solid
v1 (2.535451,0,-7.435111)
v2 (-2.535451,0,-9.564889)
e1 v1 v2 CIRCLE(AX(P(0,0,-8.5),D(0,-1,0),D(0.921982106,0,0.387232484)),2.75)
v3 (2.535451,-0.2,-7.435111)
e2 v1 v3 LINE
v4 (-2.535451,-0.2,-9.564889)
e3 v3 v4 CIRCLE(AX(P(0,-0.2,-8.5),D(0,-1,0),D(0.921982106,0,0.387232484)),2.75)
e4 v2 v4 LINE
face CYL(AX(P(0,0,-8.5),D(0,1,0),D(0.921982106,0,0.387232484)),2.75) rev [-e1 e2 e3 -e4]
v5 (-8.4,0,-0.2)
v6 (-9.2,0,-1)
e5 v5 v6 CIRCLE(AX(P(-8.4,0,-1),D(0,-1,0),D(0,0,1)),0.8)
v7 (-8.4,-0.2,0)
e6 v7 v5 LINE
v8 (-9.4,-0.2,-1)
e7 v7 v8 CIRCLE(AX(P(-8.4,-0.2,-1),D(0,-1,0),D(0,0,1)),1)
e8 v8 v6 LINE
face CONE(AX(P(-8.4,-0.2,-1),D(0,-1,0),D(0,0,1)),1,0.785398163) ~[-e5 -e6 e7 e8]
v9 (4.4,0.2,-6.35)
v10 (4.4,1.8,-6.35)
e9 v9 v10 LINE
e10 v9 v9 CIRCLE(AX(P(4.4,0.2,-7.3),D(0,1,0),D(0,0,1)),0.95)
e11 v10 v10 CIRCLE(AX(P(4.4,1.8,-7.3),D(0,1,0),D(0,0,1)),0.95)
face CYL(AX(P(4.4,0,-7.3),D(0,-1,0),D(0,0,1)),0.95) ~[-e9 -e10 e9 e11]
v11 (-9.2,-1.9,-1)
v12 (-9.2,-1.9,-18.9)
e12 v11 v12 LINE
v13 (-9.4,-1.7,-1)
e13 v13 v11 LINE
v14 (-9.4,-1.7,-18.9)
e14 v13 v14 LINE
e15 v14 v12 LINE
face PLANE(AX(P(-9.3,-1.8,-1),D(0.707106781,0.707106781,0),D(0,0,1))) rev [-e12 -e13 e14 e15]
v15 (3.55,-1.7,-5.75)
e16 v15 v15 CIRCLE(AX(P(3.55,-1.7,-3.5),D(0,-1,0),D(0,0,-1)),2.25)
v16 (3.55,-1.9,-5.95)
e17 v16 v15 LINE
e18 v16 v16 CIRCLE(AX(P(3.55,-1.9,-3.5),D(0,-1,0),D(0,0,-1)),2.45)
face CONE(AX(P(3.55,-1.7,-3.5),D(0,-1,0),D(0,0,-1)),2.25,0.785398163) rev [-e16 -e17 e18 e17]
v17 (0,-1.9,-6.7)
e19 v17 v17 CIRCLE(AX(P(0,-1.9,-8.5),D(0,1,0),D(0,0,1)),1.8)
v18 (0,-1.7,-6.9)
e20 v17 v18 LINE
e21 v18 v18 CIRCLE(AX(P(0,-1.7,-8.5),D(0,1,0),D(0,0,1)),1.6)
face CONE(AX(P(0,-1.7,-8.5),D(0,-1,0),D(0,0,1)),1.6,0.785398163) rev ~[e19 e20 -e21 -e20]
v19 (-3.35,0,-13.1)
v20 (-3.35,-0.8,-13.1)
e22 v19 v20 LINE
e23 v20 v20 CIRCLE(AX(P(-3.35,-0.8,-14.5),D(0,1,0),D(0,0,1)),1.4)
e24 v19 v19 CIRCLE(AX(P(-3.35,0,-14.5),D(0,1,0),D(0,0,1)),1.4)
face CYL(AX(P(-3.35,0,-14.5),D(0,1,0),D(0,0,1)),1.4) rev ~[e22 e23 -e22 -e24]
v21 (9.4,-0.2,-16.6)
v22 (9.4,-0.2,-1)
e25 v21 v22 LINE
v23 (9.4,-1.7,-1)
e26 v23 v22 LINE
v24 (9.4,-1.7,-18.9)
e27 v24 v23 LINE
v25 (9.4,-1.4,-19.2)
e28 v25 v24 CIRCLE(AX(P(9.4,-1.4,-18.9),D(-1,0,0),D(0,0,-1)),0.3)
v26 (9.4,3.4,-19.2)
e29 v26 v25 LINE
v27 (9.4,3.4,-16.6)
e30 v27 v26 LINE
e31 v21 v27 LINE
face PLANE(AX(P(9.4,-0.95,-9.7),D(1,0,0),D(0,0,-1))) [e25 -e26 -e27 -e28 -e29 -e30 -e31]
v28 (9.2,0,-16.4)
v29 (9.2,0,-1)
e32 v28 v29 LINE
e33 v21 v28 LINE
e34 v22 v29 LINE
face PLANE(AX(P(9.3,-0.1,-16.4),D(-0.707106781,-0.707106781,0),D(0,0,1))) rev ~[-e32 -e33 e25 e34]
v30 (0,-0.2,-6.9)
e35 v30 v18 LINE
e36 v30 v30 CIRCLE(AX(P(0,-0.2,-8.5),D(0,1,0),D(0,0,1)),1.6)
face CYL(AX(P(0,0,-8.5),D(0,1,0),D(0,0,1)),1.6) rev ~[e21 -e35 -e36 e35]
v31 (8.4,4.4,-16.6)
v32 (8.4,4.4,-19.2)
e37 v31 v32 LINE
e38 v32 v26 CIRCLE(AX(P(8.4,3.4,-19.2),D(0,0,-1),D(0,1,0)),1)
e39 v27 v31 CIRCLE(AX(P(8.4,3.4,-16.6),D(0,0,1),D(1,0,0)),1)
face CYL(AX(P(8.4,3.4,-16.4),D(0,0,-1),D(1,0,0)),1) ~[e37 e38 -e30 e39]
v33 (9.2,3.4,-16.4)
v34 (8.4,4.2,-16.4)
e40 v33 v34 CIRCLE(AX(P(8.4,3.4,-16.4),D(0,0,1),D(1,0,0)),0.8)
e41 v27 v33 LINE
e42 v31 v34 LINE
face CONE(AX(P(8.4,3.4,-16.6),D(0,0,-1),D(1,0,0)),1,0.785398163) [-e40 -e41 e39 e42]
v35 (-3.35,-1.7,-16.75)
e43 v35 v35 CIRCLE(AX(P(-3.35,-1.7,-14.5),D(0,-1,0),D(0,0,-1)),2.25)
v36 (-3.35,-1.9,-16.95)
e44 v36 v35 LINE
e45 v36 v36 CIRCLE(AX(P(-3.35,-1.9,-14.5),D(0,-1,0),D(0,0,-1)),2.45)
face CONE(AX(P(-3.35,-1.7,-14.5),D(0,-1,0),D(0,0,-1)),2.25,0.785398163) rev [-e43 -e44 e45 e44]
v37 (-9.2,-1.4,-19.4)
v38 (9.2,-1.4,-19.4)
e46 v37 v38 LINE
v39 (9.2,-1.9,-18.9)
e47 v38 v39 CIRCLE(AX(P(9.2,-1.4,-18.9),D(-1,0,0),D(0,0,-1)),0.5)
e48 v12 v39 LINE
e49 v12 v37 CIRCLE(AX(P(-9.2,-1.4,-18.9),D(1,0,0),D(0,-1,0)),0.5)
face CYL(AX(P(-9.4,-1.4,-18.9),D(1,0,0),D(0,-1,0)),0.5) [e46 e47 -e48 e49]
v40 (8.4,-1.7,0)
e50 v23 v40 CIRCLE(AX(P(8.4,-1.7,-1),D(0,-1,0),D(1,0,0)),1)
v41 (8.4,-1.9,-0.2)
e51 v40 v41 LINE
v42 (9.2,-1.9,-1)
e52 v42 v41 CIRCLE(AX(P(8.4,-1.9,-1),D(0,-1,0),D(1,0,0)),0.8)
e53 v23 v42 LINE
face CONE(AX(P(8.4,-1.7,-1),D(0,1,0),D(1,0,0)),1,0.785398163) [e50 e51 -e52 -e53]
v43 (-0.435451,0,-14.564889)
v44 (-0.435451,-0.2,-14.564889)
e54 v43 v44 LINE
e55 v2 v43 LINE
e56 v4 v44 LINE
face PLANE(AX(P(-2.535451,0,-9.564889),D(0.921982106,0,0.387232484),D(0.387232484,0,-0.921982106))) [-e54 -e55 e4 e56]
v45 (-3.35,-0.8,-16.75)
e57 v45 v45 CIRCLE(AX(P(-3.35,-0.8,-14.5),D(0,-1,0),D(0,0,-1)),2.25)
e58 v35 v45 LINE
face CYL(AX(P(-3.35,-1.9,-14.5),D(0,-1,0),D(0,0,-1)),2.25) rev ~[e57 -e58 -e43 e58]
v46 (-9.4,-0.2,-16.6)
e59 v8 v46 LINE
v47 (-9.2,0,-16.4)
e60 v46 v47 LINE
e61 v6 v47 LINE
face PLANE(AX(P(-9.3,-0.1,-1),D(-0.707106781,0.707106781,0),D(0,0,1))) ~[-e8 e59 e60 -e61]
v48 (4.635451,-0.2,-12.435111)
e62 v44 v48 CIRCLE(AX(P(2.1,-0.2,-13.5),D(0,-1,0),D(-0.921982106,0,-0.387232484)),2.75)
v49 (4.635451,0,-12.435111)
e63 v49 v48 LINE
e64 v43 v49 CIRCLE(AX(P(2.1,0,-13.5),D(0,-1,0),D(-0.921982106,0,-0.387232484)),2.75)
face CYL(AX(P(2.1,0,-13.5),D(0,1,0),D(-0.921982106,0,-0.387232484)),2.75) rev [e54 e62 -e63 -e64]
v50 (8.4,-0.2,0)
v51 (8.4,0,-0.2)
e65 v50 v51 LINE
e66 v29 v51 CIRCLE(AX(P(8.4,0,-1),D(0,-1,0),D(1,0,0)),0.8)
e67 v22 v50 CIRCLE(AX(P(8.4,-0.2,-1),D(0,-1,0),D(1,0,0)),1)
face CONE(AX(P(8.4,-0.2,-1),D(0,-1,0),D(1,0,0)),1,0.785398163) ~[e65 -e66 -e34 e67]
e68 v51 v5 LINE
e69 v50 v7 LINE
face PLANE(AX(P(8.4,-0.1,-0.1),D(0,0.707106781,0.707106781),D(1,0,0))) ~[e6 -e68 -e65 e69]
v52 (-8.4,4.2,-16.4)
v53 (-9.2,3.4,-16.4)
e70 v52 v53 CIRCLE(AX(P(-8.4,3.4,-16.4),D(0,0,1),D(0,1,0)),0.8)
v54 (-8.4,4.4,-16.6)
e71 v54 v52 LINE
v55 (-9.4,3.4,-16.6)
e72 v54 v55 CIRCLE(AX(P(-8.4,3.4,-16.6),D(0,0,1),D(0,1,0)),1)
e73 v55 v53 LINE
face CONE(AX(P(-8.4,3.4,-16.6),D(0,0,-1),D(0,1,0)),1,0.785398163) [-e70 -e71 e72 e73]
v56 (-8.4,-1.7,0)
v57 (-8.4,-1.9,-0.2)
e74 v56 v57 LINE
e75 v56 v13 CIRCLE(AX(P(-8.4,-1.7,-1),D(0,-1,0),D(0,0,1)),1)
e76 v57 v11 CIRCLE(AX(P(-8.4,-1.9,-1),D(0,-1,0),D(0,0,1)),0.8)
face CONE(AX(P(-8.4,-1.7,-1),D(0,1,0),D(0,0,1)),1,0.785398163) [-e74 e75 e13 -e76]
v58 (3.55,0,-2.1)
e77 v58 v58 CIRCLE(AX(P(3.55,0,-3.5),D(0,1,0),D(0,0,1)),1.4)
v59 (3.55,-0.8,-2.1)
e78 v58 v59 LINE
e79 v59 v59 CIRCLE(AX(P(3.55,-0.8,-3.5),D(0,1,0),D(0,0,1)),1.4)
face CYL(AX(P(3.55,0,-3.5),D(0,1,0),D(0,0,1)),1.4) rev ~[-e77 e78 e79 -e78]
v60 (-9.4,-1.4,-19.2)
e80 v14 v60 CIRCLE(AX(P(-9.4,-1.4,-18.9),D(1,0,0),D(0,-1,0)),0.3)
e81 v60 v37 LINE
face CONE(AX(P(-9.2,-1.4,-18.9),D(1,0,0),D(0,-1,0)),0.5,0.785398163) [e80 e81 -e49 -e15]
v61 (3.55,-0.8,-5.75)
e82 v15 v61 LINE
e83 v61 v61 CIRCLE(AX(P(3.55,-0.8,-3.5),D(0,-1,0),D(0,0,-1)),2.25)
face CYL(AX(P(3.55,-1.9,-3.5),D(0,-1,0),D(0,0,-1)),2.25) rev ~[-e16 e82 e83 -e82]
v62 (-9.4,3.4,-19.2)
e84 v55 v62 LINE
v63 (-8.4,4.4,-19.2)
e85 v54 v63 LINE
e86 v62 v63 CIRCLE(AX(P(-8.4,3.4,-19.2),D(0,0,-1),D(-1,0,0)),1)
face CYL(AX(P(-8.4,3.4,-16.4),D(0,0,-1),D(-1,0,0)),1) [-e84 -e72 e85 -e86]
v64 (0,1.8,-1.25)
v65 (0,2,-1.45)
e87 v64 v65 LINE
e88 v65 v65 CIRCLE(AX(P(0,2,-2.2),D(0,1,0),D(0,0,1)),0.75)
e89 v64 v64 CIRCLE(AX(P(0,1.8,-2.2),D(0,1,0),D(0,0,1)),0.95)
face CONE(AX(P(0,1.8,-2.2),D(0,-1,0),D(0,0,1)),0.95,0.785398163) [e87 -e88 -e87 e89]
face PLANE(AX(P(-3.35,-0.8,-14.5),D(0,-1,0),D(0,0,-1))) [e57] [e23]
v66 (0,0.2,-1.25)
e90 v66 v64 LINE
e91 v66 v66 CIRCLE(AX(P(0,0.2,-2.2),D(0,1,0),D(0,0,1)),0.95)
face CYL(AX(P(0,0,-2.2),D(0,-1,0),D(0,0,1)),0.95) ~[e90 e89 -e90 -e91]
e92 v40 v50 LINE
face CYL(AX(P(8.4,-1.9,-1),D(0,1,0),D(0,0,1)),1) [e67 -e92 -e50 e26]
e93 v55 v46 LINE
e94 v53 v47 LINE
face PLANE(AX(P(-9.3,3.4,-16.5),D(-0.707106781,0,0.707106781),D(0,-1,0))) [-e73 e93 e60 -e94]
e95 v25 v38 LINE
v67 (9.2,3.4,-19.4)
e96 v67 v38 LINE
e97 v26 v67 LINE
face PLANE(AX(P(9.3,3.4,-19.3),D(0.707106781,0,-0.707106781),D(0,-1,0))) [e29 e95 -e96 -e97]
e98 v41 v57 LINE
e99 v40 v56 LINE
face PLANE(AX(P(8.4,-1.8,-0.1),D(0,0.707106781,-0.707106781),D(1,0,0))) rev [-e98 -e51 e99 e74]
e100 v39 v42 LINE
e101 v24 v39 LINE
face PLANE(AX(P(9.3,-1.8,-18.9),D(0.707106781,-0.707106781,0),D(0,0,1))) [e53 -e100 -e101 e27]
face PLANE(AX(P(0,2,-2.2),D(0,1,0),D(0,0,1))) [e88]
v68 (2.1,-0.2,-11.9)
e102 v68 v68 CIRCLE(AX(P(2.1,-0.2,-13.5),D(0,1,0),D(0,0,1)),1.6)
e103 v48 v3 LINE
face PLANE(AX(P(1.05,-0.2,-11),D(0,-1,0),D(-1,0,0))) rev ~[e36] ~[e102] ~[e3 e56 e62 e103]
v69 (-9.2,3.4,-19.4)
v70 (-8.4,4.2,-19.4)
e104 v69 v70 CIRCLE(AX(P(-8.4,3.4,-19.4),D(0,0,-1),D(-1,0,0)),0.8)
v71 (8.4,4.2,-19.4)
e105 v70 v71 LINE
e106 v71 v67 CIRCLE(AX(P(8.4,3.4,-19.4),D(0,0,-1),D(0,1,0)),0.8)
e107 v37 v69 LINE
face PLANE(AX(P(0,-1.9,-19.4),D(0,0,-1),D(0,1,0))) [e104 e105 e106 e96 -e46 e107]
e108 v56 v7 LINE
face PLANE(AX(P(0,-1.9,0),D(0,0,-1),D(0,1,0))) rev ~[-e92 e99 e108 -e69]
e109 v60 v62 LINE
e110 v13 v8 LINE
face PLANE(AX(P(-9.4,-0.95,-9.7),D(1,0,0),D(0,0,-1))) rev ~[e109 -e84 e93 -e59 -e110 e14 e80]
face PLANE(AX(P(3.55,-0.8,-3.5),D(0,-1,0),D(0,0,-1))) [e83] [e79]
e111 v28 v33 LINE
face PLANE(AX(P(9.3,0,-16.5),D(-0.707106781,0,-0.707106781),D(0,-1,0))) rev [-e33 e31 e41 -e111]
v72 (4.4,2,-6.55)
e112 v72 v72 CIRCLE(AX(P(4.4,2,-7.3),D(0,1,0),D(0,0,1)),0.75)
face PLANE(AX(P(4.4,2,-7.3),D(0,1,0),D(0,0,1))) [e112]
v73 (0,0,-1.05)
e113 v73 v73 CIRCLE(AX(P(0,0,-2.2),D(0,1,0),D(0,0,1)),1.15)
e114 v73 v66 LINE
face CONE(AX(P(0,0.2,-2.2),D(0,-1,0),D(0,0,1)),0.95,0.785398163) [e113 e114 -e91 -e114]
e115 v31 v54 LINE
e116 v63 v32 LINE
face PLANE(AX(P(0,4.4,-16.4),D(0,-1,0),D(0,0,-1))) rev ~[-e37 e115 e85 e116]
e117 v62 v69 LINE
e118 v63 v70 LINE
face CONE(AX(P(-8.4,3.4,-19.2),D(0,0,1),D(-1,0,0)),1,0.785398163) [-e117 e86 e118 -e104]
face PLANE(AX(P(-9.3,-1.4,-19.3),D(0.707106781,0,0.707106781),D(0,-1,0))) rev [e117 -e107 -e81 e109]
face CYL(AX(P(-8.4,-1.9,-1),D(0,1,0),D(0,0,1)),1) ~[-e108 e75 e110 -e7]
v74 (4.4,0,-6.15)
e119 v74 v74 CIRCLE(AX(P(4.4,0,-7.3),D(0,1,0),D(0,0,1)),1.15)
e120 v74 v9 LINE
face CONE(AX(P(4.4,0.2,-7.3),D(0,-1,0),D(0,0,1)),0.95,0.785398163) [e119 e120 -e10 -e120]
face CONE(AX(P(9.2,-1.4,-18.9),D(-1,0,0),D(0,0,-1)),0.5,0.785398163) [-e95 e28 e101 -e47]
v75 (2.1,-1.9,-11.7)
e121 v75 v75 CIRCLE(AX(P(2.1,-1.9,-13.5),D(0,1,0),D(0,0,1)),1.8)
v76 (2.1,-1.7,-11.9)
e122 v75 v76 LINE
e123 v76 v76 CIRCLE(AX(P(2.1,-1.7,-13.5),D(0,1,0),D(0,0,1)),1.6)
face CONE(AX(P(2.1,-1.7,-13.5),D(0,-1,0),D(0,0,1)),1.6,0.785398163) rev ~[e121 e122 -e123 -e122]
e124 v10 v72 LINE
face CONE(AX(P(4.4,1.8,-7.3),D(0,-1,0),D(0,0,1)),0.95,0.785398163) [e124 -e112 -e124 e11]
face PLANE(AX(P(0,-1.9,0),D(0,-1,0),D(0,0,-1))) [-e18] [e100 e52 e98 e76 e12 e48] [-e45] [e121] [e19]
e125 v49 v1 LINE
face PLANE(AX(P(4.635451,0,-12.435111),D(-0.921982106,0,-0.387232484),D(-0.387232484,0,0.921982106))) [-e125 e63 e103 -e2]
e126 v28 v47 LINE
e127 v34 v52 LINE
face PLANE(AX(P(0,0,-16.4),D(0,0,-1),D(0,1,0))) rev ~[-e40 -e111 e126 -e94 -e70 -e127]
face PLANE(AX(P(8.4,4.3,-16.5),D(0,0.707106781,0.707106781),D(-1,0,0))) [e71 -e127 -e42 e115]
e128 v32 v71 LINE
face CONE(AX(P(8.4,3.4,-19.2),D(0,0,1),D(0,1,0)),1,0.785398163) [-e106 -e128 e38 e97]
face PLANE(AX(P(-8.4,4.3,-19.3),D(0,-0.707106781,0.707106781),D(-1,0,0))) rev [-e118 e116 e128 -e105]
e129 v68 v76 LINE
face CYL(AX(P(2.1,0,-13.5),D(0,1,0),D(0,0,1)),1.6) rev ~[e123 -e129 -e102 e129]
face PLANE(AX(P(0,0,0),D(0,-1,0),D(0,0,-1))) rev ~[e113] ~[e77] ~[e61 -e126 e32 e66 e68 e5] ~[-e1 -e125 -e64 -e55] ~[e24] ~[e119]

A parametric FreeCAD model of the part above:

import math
import FreeCAD as App
import Part
import Sketcher

V = App.Vector
Q = App.Units.Quantity


def edges_at(feature, points):
    """Names of the edges that pass closest to the given points."""
    edges = feature.Shape.Edges
    near = lambda p: min(range(len(edges)), key=lambda i: edges[i].distToShape(Part.Vertex(*p))[0])
    return sorted({f"Edge{near(p) + 1}" for p in points})


def add_polygon(sketch, points):
    """Adds a closed chain of lines whose ends are joined by coincident constraints."""
    first, n = sketch.GeometryCount, len(points)
    for a, b in zip(points, points[1:] + points[:1]):
        sketch.addGeometry(Part.LineSegment(App.Vector(*a, 0), App.Vector(*b, 0)), False)
    for i in range(n):
        sketch.addConstraint(Sketcher.Constraint("Coincident", first + i, 2, first + (i + 1) % n, 1))

doc = App.newDocument("Part")
body = doc.addObject("PartDesign::Body", "Body")

# Sketch on YZ plane
sketch1 = body.newObject("Sketcher::SketchObject", "Sketch")
sketch1.AttachmentSupport = (doc.getObject("YZ_Plane"), [""])
sketch1.MapMode = "FlatFace"
add_polygon(sketch1, [(0, 0), (-1.9, 0), (-1.9, -19.4), (4.4, -19.4), (4.4, -16.4), (0, -16.4)])  # lines 0-5
sketch1.addConstraint(Sketcher.Constraint("Horizontal", 0))
sketch1.addConstraint(Sketcher.Constraint("Vertical", 1))
sketch1.addConstraint(Sketcher.Constraint("Horizontal", 2))
sketch1.addConstraint(Sketcher.Constraint("Vertical", 3))
sketch1.addConstraint(Sketcher.Constraint("Horizontal", 4))
sketch1.addConstraint(Sketcher.Constraint("Vertical", 5))
sketch1.addConstraint(Sketcher.Constraint("Coincident", 5, 2, -1, 1))
sketch1.addConstraint(Sketcher.Constraint("DistanceY", 3, 1, 3, 2, Q("3 mm")))
sketch1.addConstraint(Sketcher.Constraint("DistanceX", 0, 2, 0, 1, Q("1.9 mm")))
sketch1.addConstraint(Sketcher.Constraint("DistanceX", 2, 1, 2, 2, Q("6.3 mm")))
sketch1.addConstraint(Sketcher.Constraint("DistanceY", 1, 2, 1, 1, Q("19.4 mm")))
pad1 = body.newObject("PartDesign::Pad", "Pad")
pad1.Profile = sketch1
pad1.Length = 18.8
pad1.Midplane = True

# Sketch on XZ plane
sketch2 = body.newObject("Sketcher::SketchObject", "Sketch001")
sketch2.AttachmentSupport = (doc.getObject("XZ_Plane"), [""])
sketch2.MapMode = "FlatFace"
sketch2.addGeometry(Part.Circle(V(0, -8.5, 0), V(0, 0, 1), 1.6), False)
sketch2.addGeometry(Part.Circle(V(2.1, -13.5, 0), V(0, 0, 1), 1.6), False)
sketch2.addGeometry(Part.Circle(V(3.5, -3.5, 0), V(0, 0, 1), 1.4), False)
sketch2.addGeometry(Part.Circle(V(-3.4, -14.5, 0), V(0, 0, 1), 1.4), False)
sketch2.addConstraint(Sketcher.Constraint("Equal", 0, 1))
sketch2.addConstraint(Sketcher.Constraint("Equal", 2, 3))
sketch2.addConstraint(Sketcher.Constraint("PointOnObject", 0, 3, -2))
sketch2.addConstraint(Sketcher.Constraint("Diameter", 0, Q("3.2 mm")))
sketch2.addConstraint(Sketcher.Constraint("Diameter", 2, Q("2.8 mm")))
sketch2.addConstraint(Sketcher.Constraint("DistanceY", 1, 3, 0, 3, Q("5 mm")))
sketch2.addConstraint(Sketcher.Constraint("DistanceY", 0, 3, 2, 3, Q("5 mm")))
sketch2.addConstraint(Sketcher.Constraint("DistanceY", 3, 3, 1, 3, Q("1 mm")))
sketch2.addConstraint(Sketcher.Constraint("DistanceY", 0, 3, -1, 1, Q("8.5 mm")))
sketch2.addConstraint(Sketcher.Constraint("DistanceX", -1, 1, 1, 3, Q("2.1 mm")))
sketch2.addConstraint(Sketcher.Constraint("DistanceX", 3, 3, 2, 3, Q("6.9 mm")))
sketch2.addConstraint(Sketcher.Constraint("DistanceX", -1, 1, 2, 3, Q("3.55 mm")))
pocket1 = body.newObject("PartDesign::Pocket", "Pocket")
pocket1.Profile = sketch2
pocket1.Type = "ThroughAll"
pocket1.Reversed = True

# Sketch on XZ plane
sketch3 = body.newObject("Sketcher::SketchObject", "Sketch002")
sketch3.AttachmentSupport = (doc.getObject("XZ_Plane"), [""])
sketch3.MapMode = "FlatFace"
sketch3.addGeometry(Part.LineSegment(V(-0.4, -14.6, 0), V(-2.5, -9.6, 0)), False)
sketch3.addGeometry(Part.ArcOfCircle(Part.Circle(V(0, -8.5, 0), V(0, 0, 1), 2.8), math.radians(23), math.radians(203)), False)
sketch3.addGeometry(Part.LineSegment(V(2.5, -7.4, 0), V(4.6, -12.4, 0)), False)
sketch3.addGeometry(Part.ArcOfCircle(Part.Circle(V(2.1, -13.5, 0), V(0, 0, 1), 2.8), math.radians(-157), math.radians(23)), False)
sketch3.addConstraint(Sketcher.Constraint("Tangent", 0, 2, 1, 2))
sketch3.addConstraint(Sketcher.Constraint("Tangent", 1, 1, 2, 1))
sketch3.addConstraint(Sketcher.Constraint("Tangent", 2, 2, 3, 2))
sketch3.addConstraint(Sketcher.Constraint("Tangent", 3, 1, 0, 1))
sketch3.addConstraint(Sketcher.Constraint("Equal", 1, 3))
sketch3.addConstraint(Sketcher.Constraint("PointOnObject", 1, 3, -2))
sketch3.addConstraint(Sketcher.Constraint("Radius", 1, Q("2.75 mm")))
sketch3.addConstraint(Sketcher.Constraint("DistanceY", 3, 3, 1, 3, Q("5 mm")))
sketch3.addConstraint(Sketcher.Constraint("DistanceY", 1, 3, -1, 1, Q("8.5 mm")))
sketch3.addConstraint(Sketcher.Constraint("DistanceX", -1, 1, 3, 3, Q("2.1 mm")))
pocket2 = body.newObject("PartDesign::Pocket", "Pocket001")
pocket2.Profile = sketch3
pocket2.Length = 0.2
pocket2.Reversed = True

# Sketch on XZ plane
sketch4 = body.newObject("Sketcher::SketchObject", "Sketch003")
sketch4.AttachmentSupport = (doc.getObject("XZ_Plane"), [""])
sketch4.MapMode = "FlatFace"
sketch4.AttachmentOffset = App.Placement(V(0, 0, 1.9), App.Rotation())
sketch4.addGeometry(Part.Circle(V(-3.4, -14.5, 0), V(0, 0, 1), 2.2), False)
sketch4.addGeometry(Part.Circle(V(3.5, -3.5, 0), V(0, 0, 1), 2.2), False)
sketch4.addConstraint(Sketcher.Constraint("Equal", 0, 1))
sketch4.addConstraint(Sketcher.Constraint("Diameter", 0, Q("4.5 mm")))
sketch4.addConstraint(Sketcher.Constraint("DistanceY", 0, 3, 1, 3, Q("11 mm")))
sketch4.addConstraint(Sketcher.Constraint("DistanceY", 0, 3, -1, 1, Q("14.5 mm")))
sketch4.addConstraint(Sketcher.Constraint("DistanceX", 0, 3, 1, 3, Q("6.9 mm")))
sketch4.addConstraint(Sketcher.Constraint("DistanceX", 0, 3, -1, 1, Q("3.35 mm")))
pocket3 = body.newObject("PartDesign::Pocket", "Pocket002")
pocket3.Profile = sketch4
pocket3.Length = 1.1
doc.recompute()

fillet = body.newObject("PartDesign::Fillet", "Fillet")
fillet.Base = (pocket3, edges_at(pocket3, [
    (9.4, 4.4, -17.9),
    (9.4, -0.95, 0),
    (-9.4, -0.95, 0),
    (-9.4, 4.4, -17.9),
]))
fillet.Radius = 1

# Sketch on XZ plane
sketch5 = body.newObject("Sketcher::SketchObject", "Sketch004")
sketch5.AttachmentSupport = (doc.getObject("XZ_Plane"), [""])
sketch5.MapMode = "FlatFace"
sketch5.addGeometry(Part.Circle(V(0, -2.2, 0), V(0, 0, 1), 0.9), False)
sketch5.addGeometry(Part.Circle(V(4.4, -7.3, 0), V(0, 0, 1), 0.9), False)
sketch5.addConstraint(Sketcher.Constraint("Equal", 0, 1))
sketch5.addConstraint(Sketcher.Constraint("PointOnObject", 0, 3, -2))
sketch5.addConstraint(Sketcher.Constraint("Diameter", 0, Q("1.9 mm")))
sketch5.addConstraint(Sketcher.Constraint("DistanceY", 0, 3, -1, 1, Q("2.2 mm")))
sketch5.addConstraint(Sketcher.Constraint("DistanceX", -1, 1, 1, 3, Q("4.4 mm")))
sketch5.addConstraint(Sketcher.Constraint("DistanceY", 1, 3, -1, 1, Q("7.3 mm")))
pad2 = body.newObject("PartDesign::Pad", "Pad001")
pad2.Profile = sketch5
pad2.Length = 2
pad2.Reversed = True
doc.recompute()

fillet2 = body.newObject("PartDesign::Fillet", "Fillet001")
fillet2.Base = (pad2, edges_at(pad2, [(0, -1.9, -19.4)]))
fillet2.Radius = 0.5
doc.recompute()

chamfer = body.newObject("PartDesign::Chamfer", "Chamfer")
chamfer.Base = (fillet2, edges_at(fillet2, [
    (4.4, 0, -8.25),
    (4.4, 2, -8.25),
    (-9.4, -1.754, -19.254),
    (9.4, -1.754, -19.254),
    (9.4, 1.7, -16.4),
    (2.1, -1.9, -15.1),
    (0, -1.9, -10.1),
    (-3.35, -1.9, -12.25),
    (3.55, -1.9, -1.25),
    (0, 4.4, -16.4),
    (0, 4.4, -19.4),
    (9.107, 4.107, -16.4),
    (-9.107, 4.107, -16.4),
    (-9.4, 1, -19.4),
    (-9.4, -1.9, -9.95),
    (-9.4, 0, -8.7),
    (9.4, 1, -19.4),
    (9.107, 4.107, -19.4),
    (-9.107, 4.107, -19.4),
    (9.4, 0, -8.7),
    (9.4, -1.9, -9.95),
    (0, -1.9, 0),
    (0, 0, 0),
    (9.107, -1.9, -0.293),
    (-9.107, -1.9, -0.293),
    (9.107, 0, -0.293),
    (-9.107, 0, -0.293),
    (-9.4, 1.7, -16.4),
    (0, 0, -3.15),
    (0, 2, -3.15),
]))
chamfer.Size = 0.2

doc.recompute()
